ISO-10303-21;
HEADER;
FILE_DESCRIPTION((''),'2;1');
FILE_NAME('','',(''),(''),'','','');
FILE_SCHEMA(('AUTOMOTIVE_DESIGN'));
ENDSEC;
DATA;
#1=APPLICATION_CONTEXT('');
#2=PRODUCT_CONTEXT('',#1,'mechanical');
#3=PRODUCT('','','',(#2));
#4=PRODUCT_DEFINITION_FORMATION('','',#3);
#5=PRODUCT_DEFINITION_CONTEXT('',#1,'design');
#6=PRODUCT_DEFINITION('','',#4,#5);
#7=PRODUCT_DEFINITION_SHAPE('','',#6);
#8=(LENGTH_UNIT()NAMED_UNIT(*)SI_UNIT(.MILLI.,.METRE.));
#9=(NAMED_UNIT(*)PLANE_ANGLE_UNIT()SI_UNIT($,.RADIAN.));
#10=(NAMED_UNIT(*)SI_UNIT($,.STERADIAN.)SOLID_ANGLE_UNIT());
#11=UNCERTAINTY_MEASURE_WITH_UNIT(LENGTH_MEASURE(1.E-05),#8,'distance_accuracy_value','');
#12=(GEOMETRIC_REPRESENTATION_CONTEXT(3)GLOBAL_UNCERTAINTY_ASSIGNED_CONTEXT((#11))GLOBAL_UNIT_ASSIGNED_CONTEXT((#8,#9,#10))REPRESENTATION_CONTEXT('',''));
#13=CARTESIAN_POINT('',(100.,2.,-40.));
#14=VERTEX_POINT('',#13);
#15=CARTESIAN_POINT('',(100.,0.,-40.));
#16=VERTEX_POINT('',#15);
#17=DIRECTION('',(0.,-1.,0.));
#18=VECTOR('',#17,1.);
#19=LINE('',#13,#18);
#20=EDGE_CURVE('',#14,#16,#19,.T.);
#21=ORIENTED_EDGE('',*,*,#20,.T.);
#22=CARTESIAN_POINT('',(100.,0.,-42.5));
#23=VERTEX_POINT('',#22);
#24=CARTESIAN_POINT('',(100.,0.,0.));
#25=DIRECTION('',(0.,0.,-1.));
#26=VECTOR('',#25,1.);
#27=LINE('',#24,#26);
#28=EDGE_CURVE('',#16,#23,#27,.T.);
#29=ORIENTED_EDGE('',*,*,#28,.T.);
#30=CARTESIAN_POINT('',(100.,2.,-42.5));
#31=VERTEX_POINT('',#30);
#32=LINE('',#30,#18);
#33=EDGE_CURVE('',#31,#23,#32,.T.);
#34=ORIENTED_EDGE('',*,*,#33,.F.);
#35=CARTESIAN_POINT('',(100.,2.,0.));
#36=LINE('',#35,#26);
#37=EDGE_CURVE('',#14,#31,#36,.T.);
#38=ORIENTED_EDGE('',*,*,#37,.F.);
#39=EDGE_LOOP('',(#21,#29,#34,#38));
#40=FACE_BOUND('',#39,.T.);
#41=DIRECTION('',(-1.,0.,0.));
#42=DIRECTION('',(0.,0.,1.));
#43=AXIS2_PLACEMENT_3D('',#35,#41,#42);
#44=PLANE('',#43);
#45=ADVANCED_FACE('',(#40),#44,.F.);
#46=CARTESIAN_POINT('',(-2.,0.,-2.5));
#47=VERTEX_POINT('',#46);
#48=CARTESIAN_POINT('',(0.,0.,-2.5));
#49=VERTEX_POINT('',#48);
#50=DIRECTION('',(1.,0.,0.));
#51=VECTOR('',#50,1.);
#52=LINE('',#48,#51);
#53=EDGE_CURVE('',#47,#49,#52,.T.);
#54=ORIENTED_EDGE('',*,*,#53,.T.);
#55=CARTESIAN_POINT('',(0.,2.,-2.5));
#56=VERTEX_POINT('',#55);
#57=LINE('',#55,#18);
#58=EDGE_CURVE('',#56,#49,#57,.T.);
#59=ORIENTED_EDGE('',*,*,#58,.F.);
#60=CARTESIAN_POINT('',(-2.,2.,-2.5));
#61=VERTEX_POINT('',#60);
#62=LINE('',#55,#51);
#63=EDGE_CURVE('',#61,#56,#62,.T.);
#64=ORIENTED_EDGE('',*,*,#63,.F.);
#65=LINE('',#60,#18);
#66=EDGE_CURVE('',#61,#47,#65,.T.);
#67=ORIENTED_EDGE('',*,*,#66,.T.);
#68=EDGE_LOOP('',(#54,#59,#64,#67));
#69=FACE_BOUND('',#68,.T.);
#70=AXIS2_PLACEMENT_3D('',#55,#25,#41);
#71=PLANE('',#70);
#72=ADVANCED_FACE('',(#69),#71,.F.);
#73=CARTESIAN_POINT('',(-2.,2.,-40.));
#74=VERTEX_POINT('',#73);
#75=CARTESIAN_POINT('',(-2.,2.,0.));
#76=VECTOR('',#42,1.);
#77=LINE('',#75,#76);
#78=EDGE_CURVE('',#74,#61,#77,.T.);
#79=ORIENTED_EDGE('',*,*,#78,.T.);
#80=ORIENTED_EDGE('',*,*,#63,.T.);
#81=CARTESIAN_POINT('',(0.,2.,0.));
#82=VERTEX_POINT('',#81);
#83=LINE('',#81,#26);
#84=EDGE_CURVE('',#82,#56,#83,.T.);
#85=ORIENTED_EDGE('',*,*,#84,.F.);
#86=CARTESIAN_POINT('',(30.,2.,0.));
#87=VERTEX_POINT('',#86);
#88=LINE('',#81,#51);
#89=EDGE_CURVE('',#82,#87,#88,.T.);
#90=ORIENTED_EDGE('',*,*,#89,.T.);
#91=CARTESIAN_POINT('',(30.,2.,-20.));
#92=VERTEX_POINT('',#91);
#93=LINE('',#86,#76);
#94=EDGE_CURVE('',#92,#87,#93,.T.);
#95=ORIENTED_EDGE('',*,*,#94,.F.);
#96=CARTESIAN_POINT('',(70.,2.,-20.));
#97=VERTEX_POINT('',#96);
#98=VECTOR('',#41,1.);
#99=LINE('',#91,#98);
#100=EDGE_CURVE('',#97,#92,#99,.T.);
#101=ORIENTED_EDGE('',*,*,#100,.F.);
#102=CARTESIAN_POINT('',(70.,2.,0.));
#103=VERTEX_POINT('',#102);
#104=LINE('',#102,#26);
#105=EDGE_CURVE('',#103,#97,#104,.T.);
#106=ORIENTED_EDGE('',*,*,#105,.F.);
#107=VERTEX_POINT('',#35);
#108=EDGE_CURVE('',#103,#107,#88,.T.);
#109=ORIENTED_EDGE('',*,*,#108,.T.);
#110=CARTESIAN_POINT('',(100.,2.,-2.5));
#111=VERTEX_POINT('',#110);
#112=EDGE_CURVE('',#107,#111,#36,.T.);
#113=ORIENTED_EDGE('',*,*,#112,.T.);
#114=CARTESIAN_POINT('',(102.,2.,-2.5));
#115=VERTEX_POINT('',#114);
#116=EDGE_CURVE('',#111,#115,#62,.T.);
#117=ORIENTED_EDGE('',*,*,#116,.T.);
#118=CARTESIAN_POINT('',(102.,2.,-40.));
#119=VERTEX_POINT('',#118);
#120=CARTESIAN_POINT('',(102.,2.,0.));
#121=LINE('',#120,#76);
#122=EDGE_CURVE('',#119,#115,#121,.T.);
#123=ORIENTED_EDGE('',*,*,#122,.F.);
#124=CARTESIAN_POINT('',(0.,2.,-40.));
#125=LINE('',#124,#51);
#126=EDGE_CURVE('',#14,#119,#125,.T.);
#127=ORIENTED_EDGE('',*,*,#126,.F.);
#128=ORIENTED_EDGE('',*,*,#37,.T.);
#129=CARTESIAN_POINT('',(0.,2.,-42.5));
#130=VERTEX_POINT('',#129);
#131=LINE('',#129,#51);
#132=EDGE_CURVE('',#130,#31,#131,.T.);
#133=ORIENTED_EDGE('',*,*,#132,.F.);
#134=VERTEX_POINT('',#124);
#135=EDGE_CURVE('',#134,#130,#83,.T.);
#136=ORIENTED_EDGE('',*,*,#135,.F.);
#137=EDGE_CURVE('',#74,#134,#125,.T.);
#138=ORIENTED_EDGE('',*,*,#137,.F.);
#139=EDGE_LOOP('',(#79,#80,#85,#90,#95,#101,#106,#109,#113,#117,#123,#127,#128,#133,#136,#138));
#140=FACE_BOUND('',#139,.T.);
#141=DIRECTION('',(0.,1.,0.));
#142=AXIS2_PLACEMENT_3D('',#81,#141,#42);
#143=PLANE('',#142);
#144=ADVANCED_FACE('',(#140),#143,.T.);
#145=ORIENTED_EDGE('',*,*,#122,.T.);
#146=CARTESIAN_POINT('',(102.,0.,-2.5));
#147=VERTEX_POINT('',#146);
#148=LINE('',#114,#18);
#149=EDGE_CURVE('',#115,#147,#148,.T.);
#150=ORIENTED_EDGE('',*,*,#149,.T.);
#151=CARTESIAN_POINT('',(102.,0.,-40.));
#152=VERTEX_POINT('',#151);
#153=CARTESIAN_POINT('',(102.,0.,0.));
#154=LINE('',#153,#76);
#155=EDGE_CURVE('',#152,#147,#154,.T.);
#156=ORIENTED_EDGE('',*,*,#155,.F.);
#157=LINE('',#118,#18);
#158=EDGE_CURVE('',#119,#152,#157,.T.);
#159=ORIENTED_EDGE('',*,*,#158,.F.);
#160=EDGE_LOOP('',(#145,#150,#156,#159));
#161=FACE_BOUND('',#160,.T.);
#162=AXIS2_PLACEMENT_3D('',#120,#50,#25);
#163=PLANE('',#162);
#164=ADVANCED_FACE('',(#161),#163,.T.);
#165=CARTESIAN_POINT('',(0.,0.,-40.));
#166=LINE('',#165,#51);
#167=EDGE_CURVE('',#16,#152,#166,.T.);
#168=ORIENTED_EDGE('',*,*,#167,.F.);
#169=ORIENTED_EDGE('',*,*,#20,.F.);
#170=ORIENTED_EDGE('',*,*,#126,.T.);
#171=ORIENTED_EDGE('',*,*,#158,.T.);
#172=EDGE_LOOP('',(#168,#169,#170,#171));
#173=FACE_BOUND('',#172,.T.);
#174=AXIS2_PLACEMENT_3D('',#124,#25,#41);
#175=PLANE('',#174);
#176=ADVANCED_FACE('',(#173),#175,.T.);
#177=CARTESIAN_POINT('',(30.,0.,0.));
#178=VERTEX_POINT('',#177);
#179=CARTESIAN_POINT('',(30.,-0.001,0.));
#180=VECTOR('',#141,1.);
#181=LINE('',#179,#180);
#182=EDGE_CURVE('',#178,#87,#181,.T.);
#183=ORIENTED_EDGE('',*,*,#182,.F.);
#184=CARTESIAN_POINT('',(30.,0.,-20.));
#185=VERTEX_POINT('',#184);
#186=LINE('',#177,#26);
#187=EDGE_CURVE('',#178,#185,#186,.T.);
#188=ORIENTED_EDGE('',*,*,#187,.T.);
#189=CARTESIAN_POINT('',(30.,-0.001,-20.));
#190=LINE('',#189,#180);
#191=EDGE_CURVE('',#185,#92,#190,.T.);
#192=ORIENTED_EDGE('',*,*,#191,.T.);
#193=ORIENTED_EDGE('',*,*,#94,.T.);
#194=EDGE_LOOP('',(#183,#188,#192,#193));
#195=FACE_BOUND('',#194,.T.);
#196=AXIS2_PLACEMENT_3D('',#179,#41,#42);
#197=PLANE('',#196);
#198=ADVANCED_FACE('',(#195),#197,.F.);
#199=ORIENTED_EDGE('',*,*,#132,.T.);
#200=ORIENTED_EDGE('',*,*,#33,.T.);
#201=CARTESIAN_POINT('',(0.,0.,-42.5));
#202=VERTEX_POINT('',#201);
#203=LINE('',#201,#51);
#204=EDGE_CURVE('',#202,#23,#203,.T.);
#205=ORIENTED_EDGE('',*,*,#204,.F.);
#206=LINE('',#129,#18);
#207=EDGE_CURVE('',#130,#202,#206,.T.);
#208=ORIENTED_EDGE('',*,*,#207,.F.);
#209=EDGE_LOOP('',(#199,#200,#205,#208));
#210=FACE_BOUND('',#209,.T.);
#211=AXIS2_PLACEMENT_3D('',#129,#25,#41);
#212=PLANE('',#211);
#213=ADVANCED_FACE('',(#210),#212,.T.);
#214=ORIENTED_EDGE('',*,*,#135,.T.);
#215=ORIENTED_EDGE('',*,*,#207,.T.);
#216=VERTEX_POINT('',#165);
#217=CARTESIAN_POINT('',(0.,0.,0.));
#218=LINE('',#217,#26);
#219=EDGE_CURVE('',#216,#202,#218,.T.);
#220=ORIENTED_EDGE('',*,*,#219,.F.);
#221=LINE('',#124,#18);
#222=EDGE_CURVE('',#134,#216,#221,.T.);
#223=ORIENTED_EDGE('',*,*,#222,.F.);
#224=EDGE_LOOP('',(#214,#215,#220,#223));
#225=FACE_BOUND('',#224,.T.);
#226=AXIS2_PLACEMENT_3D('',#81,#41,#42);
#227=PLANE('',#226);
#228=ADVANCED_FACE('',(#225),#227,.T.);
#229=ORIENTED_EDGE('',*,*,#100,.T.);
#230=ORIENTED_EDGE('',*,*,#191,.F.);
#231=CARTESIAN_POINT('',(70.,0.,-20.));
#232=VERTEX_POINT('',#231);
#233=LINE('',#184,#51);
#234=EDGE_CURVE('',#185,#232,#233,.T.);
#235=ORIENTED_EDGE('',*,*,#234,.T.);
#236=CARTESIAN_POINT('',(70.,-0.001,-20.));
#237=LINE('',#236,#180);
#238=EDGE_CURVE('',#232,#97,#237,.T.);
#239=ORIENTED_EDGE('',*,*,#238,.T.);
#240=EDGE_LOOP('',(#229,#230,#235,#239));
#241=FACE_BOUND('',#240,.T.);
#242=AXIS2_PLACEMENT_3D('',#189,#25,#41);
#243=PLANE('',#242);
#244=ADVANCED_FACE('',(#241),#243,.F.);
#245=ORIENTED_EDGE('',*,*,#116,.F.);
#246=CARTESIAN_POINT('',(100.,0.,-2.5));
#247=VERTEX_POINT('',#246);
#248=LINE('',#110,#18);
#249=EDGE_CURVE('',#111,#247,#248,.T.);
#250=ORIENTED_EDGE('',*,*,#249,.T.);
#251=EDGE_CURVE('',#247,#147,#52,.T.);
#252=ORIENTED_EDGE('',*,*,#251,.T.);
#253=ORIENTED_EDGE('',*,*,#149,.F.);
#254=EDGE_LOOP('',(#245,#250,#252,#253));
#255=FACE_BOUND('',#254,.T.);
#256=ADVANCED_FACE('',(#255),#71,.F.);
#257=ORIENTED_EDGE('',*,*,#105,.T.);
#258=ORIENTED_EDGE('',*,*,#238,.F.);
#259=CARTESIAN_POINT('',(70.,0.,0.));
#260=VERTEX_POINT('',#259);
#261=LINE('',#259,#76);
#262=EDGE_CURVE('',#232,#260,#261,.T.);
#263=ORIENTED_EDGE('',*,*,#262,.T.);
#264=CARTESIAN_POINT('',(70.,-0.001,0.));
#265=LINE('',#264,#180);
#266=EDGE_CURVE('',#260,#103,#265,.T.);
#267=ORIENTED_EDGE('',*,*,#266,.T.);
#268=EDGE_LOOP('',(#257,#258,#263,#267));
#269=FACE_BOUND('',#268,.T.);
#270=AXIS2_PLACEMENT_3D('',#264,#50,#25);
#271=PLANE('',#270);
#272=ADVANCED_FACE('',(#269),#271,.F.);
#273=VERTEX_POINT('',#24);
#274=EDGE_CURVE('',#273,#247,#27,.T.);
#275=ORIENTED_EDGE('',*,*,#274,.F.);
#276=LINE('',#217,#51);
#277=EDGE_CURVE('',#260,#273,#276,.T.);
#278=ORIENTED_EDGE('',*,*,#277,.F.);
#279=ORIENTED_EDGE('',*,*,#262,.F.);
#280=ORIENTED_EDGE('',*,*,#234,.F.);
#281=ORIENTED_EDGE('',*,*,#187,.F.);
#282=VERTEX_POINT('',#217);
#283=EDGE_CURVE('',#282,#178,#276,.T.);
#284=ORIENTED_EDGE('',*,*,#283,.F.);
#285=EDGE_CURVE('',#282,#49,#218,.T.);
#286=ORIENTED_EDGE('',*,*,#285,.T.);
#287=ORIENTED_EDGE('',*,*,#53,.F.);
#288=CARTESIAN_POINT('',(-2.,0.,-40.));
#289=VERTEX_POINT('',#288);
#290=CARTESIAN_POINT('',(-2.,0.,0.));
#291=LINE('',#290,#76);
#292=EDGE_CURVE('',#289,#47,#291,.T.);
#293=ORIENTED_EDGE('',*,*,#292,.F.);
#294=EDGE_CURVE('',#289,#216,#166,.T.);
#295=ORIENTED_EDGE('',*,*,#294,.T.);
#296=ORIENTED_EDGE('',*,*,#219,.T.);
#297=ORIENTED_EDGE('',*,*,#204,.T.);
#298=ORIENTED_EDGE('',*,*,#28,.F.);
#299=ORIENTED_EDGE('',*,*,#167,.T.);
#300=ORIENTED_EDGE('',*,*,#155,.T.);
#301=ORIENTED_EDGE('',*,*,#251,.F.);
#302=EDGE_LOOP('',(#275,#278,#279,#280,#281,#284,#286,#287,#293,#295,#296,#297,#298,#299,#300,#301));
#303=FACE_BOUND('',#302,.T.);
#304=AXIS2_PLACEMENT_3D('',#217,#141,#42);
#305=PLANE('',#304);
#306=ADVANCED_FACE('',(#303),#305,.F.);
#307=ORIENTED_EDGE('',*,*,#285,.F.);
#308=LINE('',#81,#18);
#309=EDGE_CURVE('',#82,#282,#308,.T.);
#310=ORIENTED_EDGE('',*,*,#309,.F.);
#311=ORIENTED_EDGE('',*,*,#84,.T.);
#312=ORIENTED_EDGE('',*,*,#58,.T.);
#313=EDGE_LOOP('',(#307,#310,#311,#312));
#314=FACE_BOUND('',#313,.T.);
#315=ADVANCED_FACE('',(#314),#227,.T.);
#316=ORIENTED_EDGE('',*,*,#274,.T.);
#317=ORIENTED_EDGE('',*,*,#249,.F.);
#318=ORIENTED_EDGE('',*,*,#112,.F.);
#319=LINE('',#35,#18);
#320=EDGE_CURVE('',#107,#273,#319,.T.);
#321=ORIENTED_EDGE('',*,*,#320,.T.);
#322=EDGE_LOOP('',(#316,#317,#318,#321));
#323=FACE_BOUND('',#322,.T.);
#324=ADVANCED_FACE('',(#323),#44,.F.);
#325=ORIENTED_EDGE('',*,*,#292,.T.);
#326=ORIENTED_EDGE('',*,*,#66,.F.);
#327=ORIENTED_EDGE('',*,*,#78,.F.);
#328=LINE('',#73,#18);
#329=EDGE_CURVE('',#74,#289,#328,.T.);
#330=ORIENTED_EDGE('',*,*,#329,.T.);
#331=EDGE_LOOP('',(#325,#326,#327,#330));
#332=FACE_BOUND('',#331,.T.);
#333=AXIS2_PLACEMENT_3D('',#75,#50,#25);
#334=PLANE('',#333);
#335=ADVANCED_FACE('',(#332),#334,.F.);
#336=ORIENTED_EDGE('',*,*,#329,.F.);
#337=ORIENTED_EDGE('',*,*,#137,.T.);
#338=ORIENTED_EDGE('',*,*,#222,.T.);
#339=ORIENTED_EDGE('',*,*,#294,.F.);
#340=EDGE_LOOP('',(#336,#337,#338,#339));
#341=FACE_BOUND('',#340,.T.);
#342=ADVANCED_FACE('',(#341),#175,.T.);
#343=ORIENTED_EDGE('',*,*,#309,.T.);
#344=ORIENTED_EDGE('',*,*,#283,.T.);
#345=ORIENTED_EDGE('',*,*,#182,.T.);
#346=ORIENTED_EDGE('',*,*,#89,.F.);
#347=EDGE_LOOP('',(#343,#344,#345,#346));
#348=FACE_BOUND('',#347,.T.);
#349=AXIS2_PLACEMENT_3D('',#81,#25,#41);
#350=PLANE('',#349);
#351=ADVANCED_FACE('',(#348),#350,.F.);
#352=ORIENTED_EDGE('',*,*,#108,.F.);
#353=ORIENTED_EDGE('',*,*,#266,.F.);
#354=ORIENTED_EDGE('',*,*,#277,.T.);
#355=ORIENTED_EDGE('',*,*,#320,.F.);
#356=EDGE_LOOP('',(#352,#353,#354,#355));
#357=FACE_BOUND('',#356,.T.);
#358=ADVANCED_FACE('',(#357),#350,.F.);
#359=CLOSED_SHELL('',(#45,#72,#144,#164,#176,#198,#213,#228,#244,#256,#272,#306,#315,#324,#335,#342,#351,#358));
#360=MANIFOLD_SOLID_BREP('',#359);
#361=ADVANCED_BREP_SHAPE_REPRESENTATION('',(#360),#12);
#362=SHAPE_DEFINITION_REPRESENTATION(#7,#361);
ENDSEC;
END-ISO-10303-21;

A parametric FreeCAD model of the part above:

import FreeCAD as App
import Part
import Sketcher

V = App.Vector


def add_polygon(sketch, points):
    """Adds a closed chain of lines whose ends are joined by coincident constraints."""
    first, n = sketch.GeometryCount, len(points)
    for a, b in zip(points, points[1:] + points[:1]):
        sketch.addGeometry(Part.LineSegment(App.Vector(*a, 0), App.Vector(*b, 0)), False)
    for i in range(n):
        sketch.addConstraint(Sketcher.Constraint("Coincident", first + i, 2, first + (i + 1) % n, 1))

doc = App.newDocument("Part")
body = doc.addObject("PartDesign::Body", "Body")

sketch1 = body.newObject("Sketcher::SketchObject", "Sketch")
sketch1.AttachmentSupport = (doc.getObject("XZ_Plane"), [""])
sketch1.MapMode = "FlatFace"
add_polygon(sketch1, [(-2, -40), (-2, -2.5), (0, -2.5), (0, 0), (100, 0), (100, -2.5), (102, -2.5), (102, -40), (100, -40), (100, -42.5), (0, -42.5), (0, -40)])
sketch1.addConstraint(Sketcher.Constraint("Vertical", 0))
sketch1.addConstraint(Sketcher.Constraint("Horizontal", 1))
sketch1.addConstraint(Sketcher.Constraint("Vertical", 2))
sketch1.addConstraint(Sketcher.Constraint("Horizontal", 3))
sketch1.addConstraint(Sketcher.Constraint("Vertical", 4))
sketch1.addConstraint(Sketcher.Constraint("Horizontal", 5))
sketch1.addConstraint(Sketcher.Constraint("Vertical", 6))
sketch1.addConstraint(Sketcher.Constraint("Horizontal", 7))
sketch1.addConstraint(Sketcher.Constraint("Vertical", 8))
sketch1.addConstraint(Sketcher.Constraint("Horizontal", 9))
sketch1.addConstraint(Sketcher.Constraint("Vertical", 10))
sketch1.addConstraint(Sketcher.Constraint("Horizontal", 11))
sketch1.addConstraint(Sketcher.Constraint("Coincident", 2, 2, -1, 1))
sketch1.addConstraint(Sketcher.Constraint("PointOnObject", 9, 2, -2))
sketch1.addConstraint(Sketcher.Constraint("Horizontal", 1, 2, 4, 2))
sketch1.addConstraint(Sketcher.Constraint("Horizontal", 7, 2, 10, 2))
sketch1.addConstraint(Sketcher.Constraint("Vertical", 4, 2, 7, 2))
sketch1.addConstraint(Sketcher.Constraint("Equal", 1, 5))
sketch1.addConstraint(Sketcher.Constraint("Equal", 4, 8))
sketch1.addConstraint(Sketcher.Constraint("DistanceX", 1, 1, 1, 2, 2.0))
sketch1.addConstraint(Sketcher.Constraint("DistanceX", 3, 1, 3, 2, 100.0))
sketch1.addConstraint(Sketcher.Constraint("DistanceY", 0, 1, 0, 2, 37.5))
sketch1.addConstraint(Sketcher.Constraint("DistanceY", 2, 1, 2, 2, 2.5))
pad1 = body.newObject("PartDesign::Pad", "Pad")
pad1.Profile = sketch1
pad1.Length = 2
pad1.Reversed = True

sketch2 = body.newObject("Sketcher::SketchObject", "Sketch001")
sketch2.AttachmentSupport = (doc.getObject("XZ_Plane"), [""])
sketch2.MapMode = "FlatFace"
sketch2.AttachmentOffset = App.Placement(V(0, 0, -2), App.Rotation())
add_polygon(sketch2, [(30, -20), (30, 0), (70, 0), (70, -20)])
sketch2.addConstraint(Sketcher.Constraint("Vertical", 0))
sketch2.addConstraint(Sketcher.Constraint("Horizontal", 1))
sketch2.addConstraint(Sketcher.Constraint("Vertical", 2))
sketch2.addConstraint(Sketcher.Constraint("Horizontal", 3))
sketch2.addConstraint(Sketcher.Constraint("PointOnObject", 0, 2, -1))
sketch2.addConstraint(Sketcher.Constraint("DistanceX", 1, 1, 1, 2, 40.0))
sketch2.addConstraint(Sketcher.Constraint("DistanceY", 0, 1, 0, 2, 20.0))
sketch2.addConstraint(Sketcher.Constraint("DistanceX", -1, 1, 0, 2, 30.0))
pocket1 = body.newObject("PartDesign::Pocket", "Pocket")
pocket1.Profile = sketch2
pocket1.Type = "UpToFirst"
pocket1.Reversed = True

doc.recompute()
